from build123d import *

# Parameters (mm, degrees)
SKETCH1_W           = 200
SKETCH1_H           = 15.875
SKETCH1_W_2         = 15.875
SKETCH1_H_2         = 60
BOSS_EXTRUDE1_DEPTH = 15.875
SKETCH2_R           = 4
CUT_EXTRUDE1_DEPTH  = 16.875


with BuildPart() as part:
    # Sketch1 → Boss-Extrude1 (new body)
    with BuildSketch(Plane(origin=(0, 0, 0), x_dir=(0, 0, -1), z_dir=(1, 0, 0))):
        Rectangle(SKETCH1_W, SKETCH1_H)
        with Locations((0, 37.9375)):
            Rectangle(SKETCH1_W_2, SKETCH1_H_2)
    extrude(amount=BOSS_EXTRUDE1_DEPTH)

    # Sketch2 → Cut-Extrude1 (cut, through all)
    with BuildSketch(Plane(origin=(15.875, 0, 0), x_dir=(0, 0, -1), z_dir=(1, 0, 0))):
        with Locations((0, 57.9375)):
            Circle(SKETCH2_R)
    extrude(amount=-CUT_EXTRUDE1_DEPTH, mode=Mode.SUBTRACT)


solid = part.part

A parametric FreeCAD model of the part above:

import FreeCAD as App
import Part
import Sketcher
Q = App.Units.Quantity


def add_polygon(sketch, points):
    """Adds a closed chain of lines whose ends are joined by coincident constraints."""
    first, n = sketch.GeometryCount, len(points)
    for a, b in zip(points, points[1:] + points[:1]):
        sketch.addGeometry(Part.LineSegment(App.Vector(*a, 0), App.Vector(*b, 0)), False)
    for i in range(n):
        sketch.addConstraint(Sketcher.Constraint("Coincident", first + i, 2, first + (i + 1) % n, 1))

doc = App.newDocument("Part")
params = doc.addObject("Spreadsheet::Sheet", "Params")
for row, (alias, value) in enumerate([
    ("sketch1_width", "60 mm"),
    ("sketch1_height", "200 mm"),
    ("pad1_length", "15.875 mm"),
    ("sketch2_diameter", "8 mm"),
], start=1):
    params.set(f"A{row}", alias)
    params.set(f"B{row}", "=" + value)
    params.setAlias(f"B{row}", alias)

body = doc.addObject("PartDesign::Body", "Body")

# Sketch on YZ plane
sketch1 = body.newObject("Sketcher::SketchObject", "Sketch")
sketch1.AttachmentSupport = (doc.getObject("YZ_Plane"), [""])
sketch1.MapMode = "FlatFace"
add_polygon(sketch1, [(7.9375, 100), (-7.9375, 100), (-7.9375, -100), (7.9375, -100), (7.9375, -7.9375), (67.9375, -7.9375), (67.9375, 7.9375), (7.9375, 7.9375)])  # lines 0-7
sketch1.addConstraint([
    Sketcher.Constraint("Horizontal", 0),
    Sketcher.Constraint("Vertical", 1),
    Sketcher.Constraint("Horizontal", 2),
    Sketcher.Constraint("Vertical", 3),
    Sketcher.Constraint("Horizontal", 4),
    Sketcher.Constraint("Vertical", 5),
    Sketcher.Constraint("Horizontal", 6),
    Sketcher.Constraint("Vertical", 7),
    Sketcher.Constraint("Symmetric", 0, 2, 2, 2, -1, 1),
    Sketcher.Constraint("Symmetric", 3, 2, 6, 2, -1),
    Sketcher.Constraint("Equal", 2, 5),
    Sketcher.Constraint("DistanceX", 4, 1, 4, 2, Q("60 mm")),
    Sketcher.Constraint("DistanceY", 1, 2, 1, 1, Q("200 mm")),
    Sketcher.Constraint("DistanceX", 0, 2, 0, 1, Q("15.875 mm")),
])
sketch1.setExpression("Constraints[19]", "Params.sketch1_width")
sketch1.setExpression("Constraints[20]", "Params.sketch1_height")
pad1 = body.newObject("PartDesign::Pad", "Pad")
pad1.Profile = sketch1
pad1.setExpression("Length", "Params.pad1_length")

# Sketch on YZ plane
sketch2 = body.newObject("Sketcher::SketchObject", "Sketch001")
sketch2.AttachmentSupport = (doc.getObject("YZ_Plane"), [""])
sketch2.MapMode = "FlatFace"
sketch2.AttachmentOffset = App.Placement(App.Vector(0, 0, 15.875), App.Rotation())
sketch2.addGeometry(Part.Circle(App.Vector(57.9375, 0, 0), App.Vector(0, 0, 1), 4), False)
sketch2.addConstraint([
    Sketcher.Constraint("PointOnObject", 0, 3, -1),
    Sketcher.Constraint("Diameter", 0, Q("8 mm")),
    Sketcher.Constraint("DistanceX", -1, 1, 0, 3, Q("57.9375 mm")),
])
sketch2.setExpression("Constraints[1]", "Params.sketch2_diameter")
pocket1 = body.newObject("PartDesign::Pocket", "Pocket")
pocket1.Profile = sketch2
pocket1.Type = "ThroughAll"

doc.recompute()
